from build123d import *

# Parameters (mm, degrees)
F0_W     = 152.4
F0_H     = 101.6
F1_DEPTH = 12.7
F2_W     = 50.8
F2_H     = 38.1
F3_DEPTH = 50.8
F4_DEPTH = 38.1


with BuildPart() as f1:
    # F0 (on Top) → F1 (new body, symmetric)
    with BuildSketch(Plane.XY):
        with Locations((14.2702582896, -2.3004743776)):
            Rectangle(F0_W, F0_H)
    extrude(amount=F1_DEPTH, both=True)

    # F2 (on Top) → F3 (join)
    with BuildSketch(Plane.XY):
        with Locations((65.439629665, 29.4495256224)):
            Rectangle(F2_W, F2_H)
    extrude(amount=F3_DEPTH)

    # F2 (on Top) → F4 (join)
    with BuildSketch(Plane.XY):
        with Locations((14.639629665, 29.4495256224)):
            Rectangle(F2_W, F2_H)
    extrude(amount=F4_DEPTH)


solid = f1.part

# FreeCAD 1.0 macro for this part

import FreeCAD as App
import Part
import Sketcher
from FreeCAD import Vector
Q = App.Units.Quantity


def add_polygon(sketch, points):
    """Adds a closed chain of lines whose ends are joined by coincident constraints."""
    first, n = sketch.GeometryCount, len(points)
    for a, b in zip(points, points[1:] + points[:1]):
        sketch.addGeometry(Part.LineSegment(App.Vector(*a, 0), App.Vector(*b, 0)), False)
    for i in range(n):
        sketch.addConstraint(Sketcher.Constraint("Coincident", first + i, 2, first + (i + 1) % n, 1))

doc = App.newDocument("Part")
body = doc.addObject("PartDesign::Body", "Body")

sketch1 = body.newObject("Sketcher::SketchObject", "Sketch")
sketch1.AttachmentSupport = (doc.getObject("XY_Plane"), [""])
sketch1.MapMode = "FlatFace"
add_polygon(sketch1, [(-62, 48), (-62, -53), (90, -53), (90, 48)])
sketch1.addConstraint(Sketcher.Constraint("Vertical", 0))
sketch1.addConstraint(Sketcher.Constraint("Horizontal", 1))
sketch1.addConstraint(Sketcher.Constraint("Vertical", 2))
sketch1.addConstraint(Sketcher.Constraint("Horizontal", 3))
sketch1.addConstraint(Sketcher.Constraint("DistanceX", 1, 1, 1, 2, Q("6 in")))
sketch1.addConstraint(Sketcher.Constraint("DistanceY", 0, 2, 0, 1, Q("4 in")))
sketch1.addConstraint(Sketcher.Constraint("DistanceX", 0, 2, -1, 1, Q("61.929742 mm")))
sketch1.addConstraint(Sketcher.Constraint("DistanceY", 0, 2, -1, 1, Q("53.100474 mm")))
pad1 = body.newObject("PartDesign::Pad", "Pad")
pad1.Profile = sketch1
pad1.Length = Q("1 in")
pad1.Midplane = True

sketch2 = body.newObject("Sketcher::SketchObject", "Sketch001")
sketch2.AttachmentSupport = (doc.getObject("XY_Plane"), [""])
sketch2.MapMode = "FlatFace"
add_polygon(sketch2, [(40, 48), (40, 10), (91, 10), (91, 48)])
sketch2.addConstraint(Sketcher.Constraint("Vertical", 0))
sketch2.addConstraint(Sketcher.Constraint("Horizontal", 1))
sketch2.addConstraint(Sketcher.Constraint("Vertical", 2))
sketch2.addConstraint(Sketcher.Constraint("Horizontal", 3))
sketch2.addConstraint(Sketcher.Constraint("DistanceX", 1, 1, 1, 2, Q("2 in")))
sketch2.addConstraint(Sketcher.Constraint("DistanceY", 0, 2, 0, 1, Q("1.5 in")))
sketch2.addConstraint(Sketcher.Constraint("DistanceX", -1, 1, 0, 2, Q("40.03963 mm")))
sketch2.addConstraint(Sketcher.Constraint("DistanceY", -1, 1, 0, 2, Q("10.399526 mm")))
pad2 = body.newObject("PartDesign::Pad", "Pad001")
pad2.Profile = sketch2
pad2.Length = Q("2 in")

sketch3 = body.newObject("Sketcher::SketchObject", "Sketch002")
sketch3.AttachmentSupport = (doc.getObject("XY_Plane"), [""])
sketch3.MapMode = "FlatFace"
add_polygon(sketch3, [(-11, 48), (-11, 10), (40, 10), (40, 48)])
sketch3.addConstraint(Sketcher.Constraint("Vertical", 0))
sketch3.addConstraint(Sketcher.Constraint("Horizontal", 1))
sketch3.addConstraint(Sketcher.Constraint("Vertical", 2))
sketch3.addConstraint(Sketcher.Constraint("Horizontal", 3))
sketch3.addConstraint(Sketcher.Constraint("DistanceX", 1, 1, 1, 2, Q("2 in")))
sketch3.addConstraint(Sketcher.Constraint("DistanceY", 0, 2, 0, 1, Q("1.5 in")))
sketch3.addConstraint(Sketcher.Constraint("DistanceX", 0, 2, -1, 1, Q("10.76037 mm")))
sketch3.addConstraint(Sketcher.Constraint("DistanceY", -1, 1, 0, 2, Q("10.399526 mm")))
pad3 = body.newObject("PartDesign::Pad", "Pad002")
pad3.Profile = sketch3
pad3.Length = Q("1.5 in")

doc.recompute()
